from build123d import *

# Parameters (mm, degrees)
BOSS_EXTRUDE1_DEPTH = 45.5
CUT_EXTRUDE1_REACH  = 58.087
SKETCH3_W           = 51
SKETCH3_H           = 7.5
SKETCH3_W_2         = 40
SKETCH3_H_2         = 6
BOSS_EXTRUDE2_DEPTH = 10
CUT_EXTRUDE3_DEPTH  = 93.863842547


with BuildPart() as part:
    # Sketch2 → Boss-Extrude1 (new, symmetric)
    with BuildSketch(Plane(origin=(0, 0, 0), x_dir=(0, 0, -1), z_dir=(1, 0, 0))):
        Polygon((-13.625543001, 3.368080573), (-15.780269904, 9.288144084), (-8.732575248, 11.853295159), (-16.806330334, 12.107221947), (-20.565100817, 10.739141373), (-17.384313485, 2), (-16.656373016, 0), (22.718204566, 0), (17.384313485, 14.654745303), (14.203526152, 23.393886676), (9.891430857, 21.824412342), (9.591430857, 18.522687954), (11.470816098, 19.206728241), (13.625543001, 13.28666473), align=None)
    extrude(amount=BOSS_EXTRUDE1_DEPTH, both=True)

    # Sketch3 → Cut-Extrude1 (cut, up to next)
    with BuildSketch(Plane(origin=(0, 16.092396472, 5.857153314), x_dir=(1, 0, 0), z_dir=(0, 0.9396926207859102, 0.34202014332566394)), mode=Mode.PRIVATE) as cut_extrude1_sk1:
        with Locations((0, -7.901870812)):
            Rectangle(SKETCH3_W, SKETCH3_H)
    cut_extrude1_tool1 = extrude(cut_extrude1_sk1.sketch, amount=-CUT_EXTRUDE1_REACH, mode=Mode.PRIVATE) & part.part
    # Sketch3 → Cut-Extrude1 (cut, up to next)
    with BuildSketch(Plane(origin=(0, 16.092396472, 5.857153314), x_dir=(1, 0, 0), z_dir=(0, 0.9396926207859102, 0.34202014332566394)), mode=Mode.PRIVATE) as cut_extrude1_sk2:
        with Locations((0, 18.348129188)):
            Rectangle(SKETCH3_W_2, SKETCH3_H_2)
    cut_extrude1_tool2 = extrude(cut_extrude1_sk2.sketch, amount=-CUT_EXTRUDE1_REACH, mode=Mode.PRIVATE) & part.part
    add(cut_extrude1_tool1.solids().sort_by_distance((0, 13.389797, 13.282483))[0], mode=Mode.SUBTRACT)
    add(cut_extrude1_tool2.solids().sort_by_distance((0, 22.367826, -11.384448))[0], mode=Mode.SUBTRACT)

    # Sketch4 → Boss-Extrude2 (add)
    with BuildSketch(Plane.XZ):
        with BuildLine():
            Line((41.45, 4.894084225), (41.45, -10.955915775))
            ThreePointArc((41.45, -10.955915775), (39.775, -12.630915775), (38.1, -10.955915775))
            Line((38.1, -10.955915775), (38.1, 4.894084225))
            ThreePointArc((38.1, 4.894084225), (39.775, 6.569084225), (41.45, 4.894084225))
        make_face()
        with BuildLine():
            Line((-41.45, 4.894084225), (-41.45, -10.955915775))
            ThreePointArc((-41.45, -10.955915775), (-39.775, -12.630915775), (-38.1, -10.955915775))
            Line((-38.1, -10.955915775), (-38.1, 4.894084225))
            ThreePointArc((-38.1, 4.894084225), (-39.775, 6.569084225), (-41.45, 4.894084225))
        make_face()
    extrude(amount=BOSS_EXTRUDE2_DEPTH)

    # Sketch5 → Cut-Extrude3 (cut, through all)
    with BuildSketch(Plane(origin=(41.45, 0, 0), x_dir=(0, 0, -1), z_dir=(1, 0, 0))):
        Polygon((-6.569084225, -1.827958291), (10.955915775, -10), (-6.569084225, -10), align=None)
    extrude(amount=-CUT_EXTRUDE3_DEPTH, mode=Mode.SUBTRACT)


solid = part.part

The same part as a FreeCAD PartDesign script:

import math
import FreeCAD as App
import Part
import Sketcher

V = App.Vector
Q = App.Units.Quantity


def add_polygon(sketch, points):
    """Adds a closed chain of lines whose ends are joined by coincident constraints."""
    first, n = sketch.GeometryCount, len(points)
    for a, b in zip(points, points[1:] + points[:1]):
        sketch.addGeometry(Part.LineSegment(App.Vector(*a, 0), App.Vector(*b, 0)), False)
    for i in range(n):
        sketch.addConstraint(Sketcher.Constraint("Coincident", first + i, 2, first + (i + 1) % n, 1))

doc = App.newDocument("Part")
body = doc.addObject("PartDesign::Body", "Body")

sketch1 = body.newObject("Sketcher::SketchObject", "Sketch")
sketch1.AttachmentSupport = (doc.getObject("YZ_Plane"), [""])
sketch1.MapMode = "FlatFace"
add_polygon(sketch1, [(3.368081, 13.625543), (9.288144, 15.78027), (11.853295, 8.732575), (12.107222, 16.80633), (10.739141, 20.565101), (2, 17.384313), (0, 16.656373), (0, -22.718205), (14.654745, -17.384313), (23.393887, -14.203526), (21.824412, -9.891431), (18.522688, -9.591431), (19.206728, -11.470816), (13.286665, -13.625543)])
sketch1.addConstraint([
    Sketcher.Constraint("Vertical", 6),
    Sketcher.Constraint("PointOnObject", 5, 2, -2),
    Sketcher.Constraint("Perpendicular", 0, 1),
    Sketcher.Constraint("Parallel", 1, 3),
    Sketcher.Constraint("Perpendicular", 3, 4),
    Sketcher.Constraint("Parallel", 4, 5),
    Sketcher.Constraint("Parallel", 5, 7),
    Sketcher.Constraint("Parallel", 7, 8),
    Sketcher.Constraint("Perpendicular", 8, 9),
    Sketcher.Constraint("Parallel", 9, 11),
    Sketcher.Constraint("Perpendicular", 11, 12),
    Sketcher.Constraint("Perpendicular", 12, 13),
    Sketcher.Constraint("Equal", 4, 8),
    Sketcher.Constraint("Equal", 0, 12),
    Sketcher.Constraint("Angle", 0, Q("20 deg")),
    Sketcher.Constraint("Distance", 3, 4.0),
    Sketcher.Constraint("Distance", 11, 2.0),
    Sketcher.Constraint("Distance", 13, 29.0),
    Sketcher.Constraint("DistanceX", -1, 1, 4, 2, 2.0),
    Sketcher.Constraint("Distance", 0, 6.3),
    Sketcher.Constraint("Distance", 1, 7.5),
    Sketcher.Constraint("Distance", 4, 9.3),
    Sketcher.Constraint("DistanceY", 9, 2, 10, 2, 0.3),
    Sketcher.Constraint("DistanceY", -1, 1, 3, 2, 20.565101),
    Sketcher.Constraint("DistanceX", 0, 2, 7, 2, 5.366601),
    Sketcher.Constraint("DistanceY", 8, 2, 1, 2, 22.936101),
    Sketcher.Constraint("DistanceY", 6, 2, 6, 1, 39.374578),
    Sketcher.Constraint("DistanceY", -1, 1, 0, 2, 15.78027),
])
pad1 = body.newObject("PartDesign::Pad", "Pad")
pad1.Profile = sketch1
pad1.Length = 91
pad1.Midplane = True

sketch2 = body.newObject("Sketcher::SketchObject", "Sketch001")
sketch2.Placement = App.Placement(V(0, 16.092396, 5.857153), App.Rotation(V(1, 0, 0), V(0, 0.342020143, -0.939692621), V(0, 0.939692621, 0.342020143), "ZXY"))
add_polygon(sketch2, [(-25.5, -4.151871), (-25.5, -11.651871), (25.5, -11.651871), (25.5, -4.151871)])
sketch2.addConstraint([
    Sketcher.Constraint("Vertical", 0),
    Sketcher.Constraint("Horizontal", 1),
    Sketcher.Constraint("Vertical", 2),
    Sketcher.Constraint("Horizontal", 3),
    Sketcher.Constraint("DistanceX", 1, 1, 1, 2, 51.0),
    Sketcher.Constraint("DistanceY", 0, 2, 0, 1, 7.5),
    Sketcher.Constraint("DistanceX", 0, 2, -1, 1, 25.5),
    Sketcher.Constraint("DistanceY", 0, 2, -1, 1, 11.651871),
])
pocket1 = body.newObject("PartDesign::Pocket", "Pocket")
pocket1.Profile = sketch2
pocket1.Length = 3

sketch3 = body.newObject("Sketcher::SketchObject", "Sketch002")
sketch3.Placement = App.Placement(V(0, 16.092396, 5.857153), App.Rotation(V(1, 0, 0), V(0, 0.342020143, -0.939692621), V(0, 0.939692621, 0.342020143), "ZXY"))
add_polygon(sketch3, [(-20, 21.348129), (-20, 15.348129), (20, 15.348129), (20, 21.348129)])
sketch3.addConstraint([
    Sketcher.Constraint("Vertical", 0),
    Sketcher.Constraint("Horizontal", 1),
    Sketcher.Constraint("Vertical", 2),
    Sketcher.Constraint("Horizontal", 3),
    Sketcher.Constraint("DistanceX", 1, 1, 1, 2, 40.0),
    Sketcher.Constraint("DistanceY", 0, 2, 0, 1, 6.0),
    Sketcher.Constraint("DistanceX", 0, 2, -1, 1, 20.0),
    Sketcher.Constraint("DistanceY", -1, 1, 0, 2, 15.348129),
])
pocket2 = body.newObject("PartDesign::Pocket", "Pocket001")
pocket2.Profile = sketch3
pocket2.Type = "UpToFirst"

sketch4 = body.newObject("Sketcher::SketchObject", "Sketch003")
sketch4.AttachmentSupport = (doc.getObject("XZ_Plane"), [""])
sketch4.MapMode = "FlatFace"
sketch4.addGeometry([
    Part.LineSegment(V(41.45, -10.955916, 0), V(41.45, 4.894084, 0)),
    Part.ArcOfCircle(Part.Circle(V(39.775, 4.894084, 0), V(0, 0, 1), 1.675), math.radians(0), math.radians(180)),
    Part.LineSegment(V(38.1, 4.894084, 0), V(38.1, -10.955916, 0)),
    Part.ArcOfCircle(Part.Circle(V(39.775, -10.955916, 0), V(0, 0, 1), 1.675), math.radians(180), math.radians(360)),
    Part.LineSegment(V(-41.45, 4.894084, 0), V(-41.45, -10.955916, 0)),
    Part.ArcOfCircle(Part.Circle(V(-39.775, -10.955916, 0), V(0, 0, 1), 1.675), math.radians(180), math.radians(360)),
    Part.LineSegment(V(-38.1, -10.955916, 0), V(-38.1, 4.894084, 0)),
    Part.ArcOfCircle(Part.Circle(V(-39.775, 4.894084, 0), V(0, 0, 1), 1.675), math.radians(0), math.radians(180)),
], False)
sketch4.addConstraint([
    Sketcher.Constraint("Tangent", 0, 2, 1, 1),
    Sketcher.Constraint("Tangent", 1, 2, 2, 1),
    Sketcher.Constraint("Tangent", 2, 2, 3, 1),
    Sketcher.Constraint("Tangent", 3, 2, 0, 1),
    Sketcher.Constraint("Tangent", 4, 2, 5, 1),
    Sketcher.Constraint("Tangent", 5, 2, 6, 1),
    Sketcher.Constraint("Tangent", 6, 2, 7, 1),
    Sketcher.Constraint("Tangent", 7, 2, 4, 1),
    Sketcher.Constraint("Vertical", 0),
    Sketcher.Constraint("Vertical", 2),
    Sketcher.Constraint("Vertical", 4),
    Sketcher.Constraint("Vertical", 6),
    Sketcher.Constraint("Equal", 3, 5),
    Sketcher.Constraint("Symmetric", 3, 3, 5, 3, -2),
    Sketcher.Constraint("Horizontal", 1, 3, 7, 3),
    Sketcher.Constraint("Radius", 1, 1.675),
    Sketcher.Constraint("DistanceY", 0, 1, 0, 2, 15.85),
    Sketcher.Constraint("DistanceX", -1, 1, 1, 2, 38.1),
    Sketcher.Constraint("DistanceY", -1, 1, 1, 3, 4.894084),
])
pad2 = body.newObject("PartDesign::Pad", "Pad001")
pad2.Profile = sketch4
pad2.Length = 10

sketch5 = body.newObject("Sketcher::SketchObject", "Sketch004")
sketch5.AttachmentSupport = (doc.getObject("YZ_Plane"), [""])
sketch5.MapMode = "FlatFace"
sketch5.AttachmentOffset = App.Placement(V(0, 0, 41.45), App.Rotation())
add_polygon(sketch5, [(-10, -10.955916), (-1.827958, 6.569084), (-10, 6.569084)])
sketch5.addConstraint([
    Sketcher.Constraint("Horizontal", 1),
    Sketcher.Constraint("Vertical", 2),
    Sketcher.Constraint("Angle", 0, Q("65 deg")),
    Sketcher.Constraint("DistanceX", 1, 2, -1, 1, 10.0),
    Sketcher.Constraint("DistanceY", 2, 2, 2, 1, 17.525),
    Sketcher.Constraint("DistanceY", -1, 1, 0, 2, 6.569084),
])
pocket3 = body.newObject("PartDesign::Pocket", "Pocket002")
pocket3.Profile = sketch5
pocket3.Type = "ThroughAll"

doc.recompute()
